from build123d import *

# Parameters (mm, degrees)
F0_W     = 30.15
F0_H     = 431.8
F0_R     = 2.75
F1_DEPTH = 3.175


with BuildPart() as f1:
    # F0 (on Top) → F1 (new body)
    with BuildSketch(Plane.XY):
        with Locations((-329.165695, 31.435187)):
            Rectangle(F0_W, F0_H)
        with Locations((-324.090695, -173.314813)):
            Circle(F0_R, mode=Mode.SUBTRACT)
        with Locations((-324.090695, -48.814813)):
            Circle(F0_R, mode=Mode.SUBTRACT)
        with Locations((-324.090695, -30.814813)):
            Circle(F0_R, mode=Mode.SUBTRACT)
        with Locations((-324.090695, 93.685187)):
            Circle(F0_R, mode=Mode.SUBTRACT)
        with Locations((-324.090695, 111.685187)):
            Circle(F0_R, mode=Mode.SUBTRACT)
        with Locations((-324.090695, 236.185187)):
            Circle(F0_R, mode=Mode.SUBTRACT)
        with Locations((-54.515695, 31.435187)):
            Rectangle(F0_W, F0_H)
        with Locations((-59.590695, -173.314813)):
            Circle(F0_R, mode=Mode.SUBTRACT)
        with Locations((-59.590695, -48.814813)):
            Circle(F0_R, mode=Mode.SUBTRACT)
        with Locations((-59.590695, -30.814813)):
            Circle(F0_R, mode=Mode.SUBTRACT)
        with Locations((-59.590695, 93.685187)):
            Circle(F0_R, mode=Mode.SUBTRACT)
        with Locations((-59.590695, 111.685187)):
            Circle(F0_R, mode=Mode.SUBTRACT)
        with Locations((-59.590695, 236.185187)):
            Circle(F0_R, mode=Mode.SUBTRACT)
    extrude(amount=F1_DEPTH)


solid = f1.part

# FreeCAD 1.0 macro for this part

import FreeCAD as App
import Part
import Sketcher
Q = App.Units.Quantity

doc = App.newDocument("Part")
params = doc.addObject("Spreadsheet::Sheet", "Params")
for row, (alias, value) in enumerate([
    ("sketch1_height", "17 in"),
    ("pad1_length", "0.125 in"),
], start=1):
    params.set(f"A{row}", alias)
    params.set(f"B{row}", "=" + value)
    params.setAlias(f"B{row}", alias)

body = doc.addObject("PartDesign::Body", "Body")
body.AllowCompound = True

# Sketch on XY plane
sketch1 = body.newObject("Sketcher::SketchObject", "Sketch")
sketch1.AttachmentSupport = (doc.getObject("XY_Plane"), [""])
sketch1.MapMode = "FlatFace"
sketch1.addGeometry([
    Part.LineSegment(App.Vector(-344.2, 247.3, 0), App.Vector(-344.2, -184.5, 0)),  # 0
    Part.LineSegment(App.Vector(-344.2, -184.5, 0), App.Vector(-314.1, -184.5, 0)),  # 1
    Part.LineSegment(App.Vector(-314.1, -184.5, 0), App.Vector(-314.1, 247.3, 0)),  # 2
    Part.LineSegment(App.Vector(-314.1, 247.3, 0), App.Vector(-344.2, 247.3, 0)),  # 3
    Part.Circle(App.Vector(-324.1, -173.3, 0), App.Vector(0, 0, 1), 2.8),  # 4
    Part.Circle(App.Vector(-324.1, -48.8, 0), App.Vector(0, 0, 1), 2.8),  # 5
    Part.Circle(App.Vector(-324.1, -30.8, 0), App.Vector(0, 0, 1), 2.8),  # 6
    Part.Circle(App.Vector(-324.1, 93.7, 0), App.Vector(0, 0, 1), 2.8),  # 7
    Part.Circle(App.Vector(-324.1, 111.7, 0), App.Vector(0, 0, 1), 2.8),  # 8
    Part.Circle(App.Vector(-324.1, 236.2, 0), App.Vector(0, 0, 1), 2.8),  # 9
    Part.LineSegment(App.Vector(-69.6, 247.3, 0), App.Vector(-69.6, -184.5, 0)),  # 10
    Part.LineSegment(App.Vector(-69.6, -184.5, 0), App.Vector(-39.4, -184.5, 0)),  # 11
    Part.LineSegment(App.Vector(-39.4, -184.5, 0), App.Vector(-39.4, 247.3, 0)),  # 12
    Part.LineSegment(App.Vector(-39.4, 247.3, 0), App.Vector(-69.6, 247.3, 0)),  # 13
    Part.Circle(App.Vector(-59.6, -173.3, 0), App.Vector(0, 0, 1), 2.8),  # 14
    Part.Circle(App.Vector(-59.6, -48.8, 0), App.Vector(0, 0, 1), 2.8),  # 15
    Part.Circle(App.Vector(-59.6, -30.8, 0), App.Vector(0, 0, 1), 2.8),  # 16
    Part.Circle(App.Vector(-59.6, 93.7, 0), App.Vector(0, 0, 1), 2.8),  # 17
    Part.Circle(App.Vector(-59.6, 111.7, 0), App.Vector(0, 0, 1), 2.8),  # 18
    Part.Circle(App.Vector(-59.6, 236.2, 0), App.Vector(0, 0, 1), 2.8),  # 19
], False)
sketch1.addConstraint([
    Sketcher.Constraint("Coincident", 0, 2, 1, 1),
    Sketcher.Constraint("Coincident", 1, 2, 2, 1),
    Sketcher.Constraint("Coincident", 2, 2, 3, 1),
    Sketcher.Constraint("Coincident", 3, 2, 0, 1),
    Sketcher.Constraint("Coincident", 10, 2, 11, 1),
    Sketcher.Constraint("Coincident", 11, 2, 12, 1),
    Sketcher.Constraint("Coincident", 12, 2, 13, 1),
    Sketcher.Constraint("Coincident", 13, 2, 10, 1),
    Sketcher.Constraint("Vertical", 0),
    Sketcher.Constraint("Horizontal", 1),
    Sketcher.Constraint("Vertical", 2),
    Sketcher.Constraint("Horizontal", 3),
    Sketcher.Constraint("Vertical", 10),
    Sketcher.Constraint("Horizontal", 11),
    Sketcher.Constraint("Vertical", 12),
    Sketcher.Constraint("Horizontal", 13),
    Sketcher.Constraint("Equal", 4, 5),
    Sketcher.Constraint("Equal", 5, 6),
    Sketcher.Constraint("Equal", 6, 7),
    Sketcher.Constraint("Equal", 7, 8),
    Sketcher.Constraint("Equal", 8, 9),
    Sketcher.Constraint("Equal", 9, 14),
    Sketcher.Constraint("Equal", 14, 15),
    Sketcher.Constraint("Equal", 15, 16),
    Sketcher.Constraint("Equal", 16, 17),
    Sketcher.Constraint("Equal", 17, 18),
    Sketcher.Constraint("Equal", 18, 19),
    Sketcher.Constraint("Horizontal", 4, 3, 14, 3),
    Sketcher.Constraint("Horizontal", 5, 3, 15, 3),
    Sketcher.Constraint("Horizontal", 6, 3, 16, 3),
    Sketcher.Constraint("Horizontal", 7, 3, 17, 3),
    Sketcher.Constraint("Horizontal", 8, 3, 18, 3),
    Sketcher.Constraint("Horizontal", 9, 3, 19, 3),
    Sketcher.Constraint("Horizontal", 1, 2, 10, 2),
    Sketcher.Constraint("Horizontal", 3, 2, 12, 2),
    Sketcher.Constraint("Vertical", 4, 3, 5, 3),
    Sketcher.Constraint("Vertical", 5, 3, 6, 3),
    Sketcher.Constraint("Vertical", 6, 3, 7, 3),
    Sketcher.Constraint("Vertical", 7, 3, 8, 3),
    Sketcher.Constraint("Vertical", 8, 3, 9, 3),
    Sketcher.Constraint("Vertical", 14, 3, 15, 3),
    Sketcher.Constraint("Vertical", 15, 3, 16, 3),
    Sketcher.Constraint("Vertical", 16, 3, 17, 3),
    Sketcher.Constraint("Vertical", 17, 3, 18, 3),
    Sketcher.Constraint("Vertical", 18, 3, 19, 3),
    Sketcher.Constraint("Equal", 3, 11),
    Sketcher.Constraint("DistanceY", 0, 2, 0, 1, Q("17 in")),
    Sketcher.Constraint("Diameter", 4, Q("5.5 mm")),
    Sketcher.Constraint("DistanceX", 1, 1, 1, 2, Q("30.15 mm")),
    Sketcher.Constraint("DistanceY", 4, 3, 5, 3, Q("124.5 mm")),
    Sketcher.Constraint("DistanceY", 5, 3, 6, 3, Q("18 mm")),
    Sketcher.Constraint("DistanceY", 6, 3, 7, 3, Q("124.5 mm")),
    Sketcher.Constraint("DistanceY", 7, 3, 8, 3, Q("18 mm")),
    Sketcher.Constraint("DistanceY", 8, 3, 9, 3, Q("124.5 mm")),
    Sketcher.Constraint("DistanceX", 4, 3, 14, 3, Q("264.5 mm")),
    Sketcher.Constraint("DistanceX", 0, 2, 4, 3, Q("20.15 mm")),
    Sketcher.Constraint("DistanceY", 0, 2, 4, 3, Q("11.15 mm")),
    Sketcher.Constraint("DistanceX", 10, 2, 14, 3, Q("10 mm")),
    Sketcher.Constraint("DistanceX", 4, 3, -1, 1, Q("324.090695 mm")),
    Sketcher.Constraint("DistanceY", 4, 3, -1, 1, Q("173.314813 mm")),
])
sketch1.setExpression("Constraints[46]", "Params.sketch1_height")
pad1 = body.newObject("PartDesign::Pad", "Pad")
pad1.Profile = sketch1
pad1.setExpression("Length", "Params.pad1_length")

doc.recompute()
